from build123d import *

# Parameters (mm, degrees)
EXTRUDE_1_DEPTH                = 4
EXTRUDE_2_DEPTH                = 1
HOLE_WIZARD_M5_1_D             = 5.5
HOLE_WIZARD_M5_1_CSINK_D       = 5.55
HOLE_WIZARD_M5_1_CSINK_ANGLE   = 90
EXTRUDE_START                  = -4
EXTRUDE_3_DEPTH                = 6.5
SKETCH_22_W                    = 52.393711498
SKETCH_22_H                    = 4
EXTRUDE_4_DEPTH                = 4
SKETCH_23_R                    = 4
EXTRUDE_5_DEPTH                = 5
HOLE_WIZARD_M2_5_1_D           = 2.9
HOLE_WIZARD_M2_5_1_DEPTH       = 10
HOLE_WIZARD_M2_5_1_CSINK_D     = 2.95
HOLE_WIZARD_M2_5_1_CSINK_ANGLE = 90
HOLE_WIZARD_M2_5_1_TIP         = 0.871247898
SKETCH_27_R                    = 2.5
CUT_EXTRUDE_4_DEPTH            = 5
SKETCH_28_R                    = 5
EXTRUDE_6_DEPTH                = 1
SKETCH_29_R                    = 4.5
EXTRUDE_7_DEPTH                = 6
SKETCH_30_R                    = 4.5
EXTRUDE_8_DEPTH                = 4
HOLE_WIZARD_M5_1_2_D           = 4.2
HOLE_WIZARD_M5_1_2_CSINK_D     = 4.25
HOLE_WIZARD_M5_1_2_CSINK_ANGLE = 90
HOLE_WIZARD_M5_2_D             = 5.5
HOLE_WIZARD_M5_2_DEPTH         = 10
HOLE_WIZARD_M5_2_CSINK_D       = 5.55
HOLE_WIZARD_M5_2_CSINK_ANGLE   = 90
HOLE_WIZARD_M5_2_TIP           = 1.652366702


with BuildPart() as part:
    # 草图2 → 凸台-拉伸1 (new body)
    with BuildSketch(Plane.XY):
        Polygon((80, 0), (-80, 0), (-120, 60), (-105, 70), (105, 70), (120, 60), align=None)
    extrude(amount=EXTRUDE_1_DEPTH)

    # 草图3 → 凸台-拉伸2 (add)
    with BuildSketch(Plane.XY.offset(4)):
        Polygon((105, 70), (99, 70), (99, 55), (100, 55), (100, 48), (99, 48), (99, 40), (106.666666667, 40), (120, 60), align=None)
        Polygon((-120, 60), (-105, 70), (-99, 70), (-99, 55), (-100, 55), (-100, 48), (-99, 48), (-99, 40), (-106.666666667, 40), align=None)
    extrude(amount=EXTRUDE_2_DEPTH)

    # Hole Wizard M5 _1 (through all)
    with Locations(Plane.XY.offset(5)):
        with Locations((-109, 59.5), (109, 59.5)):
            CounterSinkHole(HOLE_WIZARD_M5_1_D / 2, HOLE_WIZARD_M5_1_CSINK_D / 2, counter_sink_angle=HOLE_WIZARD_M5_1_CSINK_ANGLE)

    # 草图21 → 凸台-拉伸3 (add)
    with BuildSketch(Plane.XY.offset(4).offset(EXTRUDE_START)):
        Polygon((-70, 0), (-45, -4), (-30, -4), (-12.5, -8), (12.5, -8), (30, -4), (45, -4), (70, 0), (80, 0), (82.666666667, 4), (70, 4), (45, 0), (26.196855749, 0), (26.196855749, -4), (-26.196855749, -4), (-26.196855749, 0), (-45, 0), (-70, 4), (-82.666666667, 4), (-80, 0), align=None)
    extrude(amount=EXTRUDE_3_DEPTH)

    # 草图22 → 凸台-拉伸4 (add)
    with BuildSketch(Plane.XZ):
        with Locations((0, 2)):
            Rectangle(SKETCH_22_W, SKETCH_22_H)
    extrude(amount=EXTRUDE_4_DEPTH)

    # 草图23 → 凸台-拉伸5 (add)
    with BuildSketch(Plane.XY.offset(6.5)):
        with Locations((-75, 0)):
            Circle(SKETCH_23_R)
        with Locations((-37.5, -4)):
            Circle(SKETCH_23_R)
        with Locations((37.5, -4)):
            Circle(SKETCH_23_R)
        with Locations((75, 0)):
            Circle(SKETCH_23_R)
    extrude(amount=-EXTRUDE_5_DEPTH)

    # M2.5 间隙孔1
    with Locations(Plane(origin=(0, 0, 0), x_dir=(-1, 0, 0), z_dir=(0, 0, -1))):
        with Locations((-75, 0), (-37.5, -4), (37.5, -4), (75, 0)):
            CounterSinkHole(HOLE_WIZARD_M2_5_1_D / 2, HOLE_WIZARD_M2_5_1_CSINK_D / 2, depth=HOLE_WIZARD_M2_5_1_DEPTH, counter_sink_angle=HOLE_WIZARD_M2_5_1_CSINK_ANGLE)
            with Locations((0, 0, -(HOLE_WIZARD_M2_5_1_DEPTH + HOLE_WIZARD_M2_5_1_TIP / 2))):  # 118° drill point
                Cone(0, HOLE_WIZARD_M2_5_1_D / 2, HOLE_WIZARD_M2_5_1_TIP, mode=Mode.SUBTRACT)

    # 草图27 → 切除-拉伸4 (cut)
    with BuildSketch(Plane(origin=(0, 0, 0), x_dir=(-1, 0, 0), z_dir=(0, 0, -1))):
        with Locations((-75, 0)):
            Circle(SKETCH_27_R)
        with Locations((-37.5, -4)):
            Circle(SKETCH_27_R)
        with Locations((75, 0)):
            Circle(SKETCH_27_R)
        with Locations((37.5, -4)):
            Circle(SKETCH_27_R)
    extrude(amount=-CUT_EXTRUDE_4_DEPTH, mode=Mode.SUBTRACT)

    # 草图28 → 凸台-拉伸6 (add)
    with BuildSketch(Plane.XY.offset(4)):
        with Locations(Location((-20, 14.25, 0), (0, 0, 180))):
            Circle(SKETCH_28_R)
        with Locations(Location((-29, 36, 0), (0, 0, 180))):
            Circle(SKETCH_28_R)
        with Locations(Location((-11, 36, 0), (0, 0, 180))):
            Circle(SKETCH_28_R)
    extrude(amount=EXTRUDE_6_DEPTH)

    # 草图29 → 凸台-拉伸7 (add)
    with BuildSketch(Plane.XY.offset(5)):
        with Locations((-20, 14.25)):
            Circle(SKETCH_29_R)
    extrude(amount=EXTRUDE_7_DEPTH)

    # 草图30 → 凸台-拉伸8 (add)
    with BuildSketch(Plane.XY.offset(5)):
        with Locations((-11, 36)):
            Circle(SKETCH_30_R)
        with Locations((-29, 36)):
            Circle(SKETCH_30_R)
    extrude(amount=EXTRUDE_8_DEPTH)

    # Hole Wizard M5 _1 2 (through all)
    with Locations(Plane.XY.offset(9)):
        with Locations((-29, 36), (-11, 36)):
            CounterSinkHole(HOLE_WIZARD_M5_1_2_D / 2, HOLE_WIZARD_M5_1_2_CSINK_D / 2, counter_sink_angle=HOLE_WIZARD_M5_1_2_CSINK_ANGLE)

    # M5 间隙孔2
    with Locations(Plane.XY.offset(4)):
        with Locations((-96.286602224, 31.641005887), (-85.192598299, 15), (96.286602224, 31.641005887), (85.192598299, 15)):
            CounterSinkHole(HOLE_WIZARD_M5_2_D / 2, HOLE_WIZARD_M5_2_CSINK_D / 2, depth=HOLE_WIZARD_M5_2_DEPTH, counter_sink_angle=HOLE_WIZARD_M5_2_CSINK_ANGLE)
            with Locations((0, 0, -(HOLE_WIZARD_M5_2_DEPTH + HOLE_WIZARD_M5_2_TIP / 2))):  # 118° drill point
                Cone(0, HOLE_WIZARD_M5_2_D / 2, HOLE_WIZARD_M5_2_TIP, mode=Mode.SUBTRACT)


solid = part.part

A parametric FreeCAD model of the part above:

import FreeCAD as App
import Part
import Sketcher

V = App.Vector


def add_polygon(sketch, points):
    """Adds a closed chain of lines whose ends are joined by coincident constraints."""
    first, n = sketch.GeometryCount, len(points)
    for a, b in zip(points, points[1:] + points[:1]):
        sketch.addGeometry(Part.LineSegment(App.Vector(*a, 0), App.Vector(*b, 0)), False)
    for i in range(n):
        sketch.addConstraint(Sketcher.Constraint("Coincident", first + i, 2, first + (i + 1) % n, 1))

doc = App.newDocument("Part")
body = doc.addObject("PartDesign::Body", "Body")

# Sketch on XY plane
sketch1 = body.newObject("Sketcher::SketchObject", "Sketch")
sketch1.AttachmentSupport = (doc.getObject("XY_Plane"), [""])
sketch1.MapMode = "FlatFace"
add_polygon(sketch1, [(-80, 0), (80, 0), (120, 60), (105, 70), (-105, 70), (-120, 60)])  # lines 0-5
sketch1.addConstraint([
    Sketcher.Constraint("Horizontal", 0),
    Sketcher.Constraint("Horizontal", 3),
    Sketcher.Constraint("Symmetric", 0, 2, 5, 2, -1, 1),
    Sketcher.Constraint("Symmetric", 1, 2, 4, 2, -2),
    Sketcher.Constraint("Perpendicular", 1, 2),
    Sketcher.Constraint("Perpendicular", 4, 5),
    Sketcher.Constraint("DistanceX", 0, 1, 0, 2, 160.0),
    Sketcher.Constraint("DistanceX", 3, 2, 3, 1, 210.0),
    Sketcher.Constraint("DistanceX", -1, 1, 1, 2, 120.0),
    Sketcher.Constraint("DistanceY", -1, 1, 1, 2, 60.0),
])
pad1 = body.newObject("PartDesign::Pad", "Pad")
pad1.Profile = sketch1
pad1.Length = 4

# Sketch on XY plane
sketch2 = body.newObject("Sketcher::SketchObject", "Sketch001")
sketch2.AttachmentSupport = (doc.getObject("XY_Plane"), [""])
sketch2.MapMode = "FlatFace"
sketch2.AttachmentOffset = App.Placement(V(0, 0, 4), App.Rotation())
add_polygon(sketch2, [(105, 70), (99, 70), (99, 55), (100, 55), (100, 48), (99, 48), (99, 40), (106.7, 40), (120, 60)])  # lines 0-8
add_polygon(sketch2, [(-105, 70), (-120, 60), (-106.7, 40), (-99, 40), (-99, 48), (-100, 48), (-100, 55), (-99, 55), (-99, 70)])  # lines 9-17
sketch2.addConstraint([
    Sketcher.Constraint("Horizontal", 0),
    Sketcher.Constraint("Vertical", 1),
    Sketcher.Constraint("Horizontal", 2),
    Sketcher.Constraint("Vertical", 3),
    Sketcher.Constraint("Horizontal", 4),
    Sketcher.Constraint("Vertical", 5),
    Sketcher.Constraint("Horizontal", 6),
    Sketcher.Constraint("Horizontal", 11),
    Sketcher.Constraint("Vertical", 12),
    Sketcher.Constraint("Horizontal", 13),
    Sketcher.Constraint("Vertical", 14),
    Sketcher.Constraint("Horizontal", 15),
    Sketcher.Constraint("Vertical", 16),
    Sketcher.Constraint("Horizontal", 17),
    Sketcher.Constraint("Symmetric", 7, 2, 9, 2, -2),
    Sketcher.Constraint("Symmetric", 6, 2, 10, 2, -2),
    Sketcher.Constraint("Symmetric", 4, 2, 12, 2, -2),
    Sketcher.Constraint("Symmetric", 2, 2, 14, 2, -2),
    Sketcher.Constraint("Symmetric", 0, 2, 16, 2, -2),
    Sketcher.Constraint("Perpendicular", 7, 8),
    Sketcher.Constraint("Perpendicular", 9, 10),
    Sketcher.Constraint("Vertical", 1, 2, 4, 2),
    Sketcher.Constraint("DistanceX", 0, 2, 0, 1, 6.0),
    Sketcher.Constraint("DistanceX", 2, 1, 2, 2, 1.0),
    Sketcher.Constraint("DistanceY", 1, 2, 1, 1, 15.0),
    Sketcher.Constraint("DistanceY", 3, 2, 3, 1, 7.0),
    Sketcher.Constraint("DistanceY", 5, 2, 5, 1, 8.0),
    Sketcher.Constraint("DistanceX", -1, 1, 0, 2, 99.0),
    Sketcher.Constraint("DistanceY", -1, 1, 0, 2, 70.0),
    Sketcher.Constraint("DistanceX", -1, 1, 7, 2, 120.0),
    Sketcher.Constraint("DistanceY", -1, 1, 7, 2, 60.0),
])
pad2 = body.newObject("PartDesign::Pad", "Pad001")
pad2.Profile = sketch2
pad2.Length = 1

# Sketch on XY plane
sketch3 = body.newObject("Sketcher::SketchObject", "Sketch002")
sketch3.AttachmentSupport = (doc.getObject("XY_Plane"), [""])
sketch3.MapMode = "FlatFace"
sketch3.AttachmentOffset = App.Placement(V(0, 0, 5), App.Rotation())
sketch3.addGeometry([
    Part.Circle(V(-109, 59.5, 0), V(0, 0, 1), 2.8),
    Part.Circle(V(109, 59.5, 0), V(0, 0, 1), 2.8),
], False)
sketch3.addConstraint([
    Sketcher.Constraint("Equal", 0, 1),
    Sketcher.Constraint("Symmetric", 0, 3, 1, 3, -2),
    Sketcher.Constraint("Diameter", 0, 5.5),
    Sketcher.Constraint("DistanceX", 0, 3, -1, 1, 109.0),
    Sketcher.Constraint("DistanceY", -1, 1, 0, 3, 59.5),
])
doc.recompute()
hole = body.newObject("PartDesign::Hole", "Hole")
hole.Profile = sketch3
hole.ThreadType = "None"
hole.Diameter = 5.5
hole.DepthType = "ThroughAll"
hole.HoleCutType = "Countersink"
hole.HoleCutDiameter = 5.55
hole.HoleCutCountersinkAngle = 90

# Sketch on XY plane
sketch4 = body.newObject("Sketcher::SketchObject", "Sketch003")
sketch4.AttachmentSupport = (doc.getObject("XY_Plane"), [""])
sketch4.MapMode = "FlatFace"
add_polygon(sketch4, [(-70, 0), (-45, -4), (-30, -4), (-12.5, -8), (12.5, -8), (30, -4), (45, -4), (70, 0), (80, 0), (82.7, 4), (70, 4), (45, 0), (26.2, 0), (26.2, -4), (-26.2, -4), (-26.2, 0), (-45, 0), (-70, 4), (-82.7, 4), (-80, 0)])  # lines 0-19
sketch4.addConstraint([
    Sketcher.Constraint("Horizontal", 1),
    Sketcher.Constraint("Horizontal", 3),
    Sketcher.Constraint("Horizontal", 5),
    Sketcher.Constraint("Horizontal", 7),
    Sketcher.Constraint("Horizontal", 9),
    Sketcher.Constraint("Horizontal", 11),
    Sketcher.Constraint("Vertical", 12),
    Sketcher.Constraint("Horizontal", 13),
    Sketcher.Constraint("Vertical", 14),
    Sketcher.Constraint("Horizontal", 15),
    Sketcher.Constraint("Horizontal", 17),
    Sketcher.Constraint("Horizontal", 19),
    Sketcher.Constraint("Symmetric", 11, 2, 14, 2, -1, 1),
    Sketcher.Constraint("Symmetric", 7, 2, 18, 2, -1, 1),
    Sketcher.Constraint("Symmetric", 1, 2, 4, 2, -2),
    Sketcher.Constraint("Symmetric", 10, 2, 15, 2, -2),
    Sketcher.Constraint("Symmetric", 9, 2, 16, 2, -2),
    Sketcher.Constraint("Symmetric", 6, 2, 19, 2, -2),
    Sketcher.Constraint("Parallel", 6, 10),
    Sketcher.Constraint("Parallel", 0, 16),
    Sketcher.Constraint("Horizontal", 5, 2, 12, 2),
    Sketcher.Constraint("Vertical", 6, 2, 9, 2),
    Sketcher.Constraint("Vertical", 5, 2, 10, 2),
    Sketcher.Constraint("Equal", 9, 17),
    Sketcher.Constraint("Equal", 2, 4),
    Sketcher.Constraint("DistanceX", 1, 1, 1, 2, 15.0),
    Sketcher.Constraint("DistanceX", 3, 1, 3, 2, 25.0),
    Sketcher.Constraint("DistanceX", 7, 1, 7, 2, 10.0),
    Sketcher.Constraint("DistanceY", 12, 2, 12, 1, 4.0),
    Sketcher.Constraint("DistanceX", 0, 2, -1, 1, 45.0),
    Sketcher.Constraint("DistanceY", 2, 2, -1, 1, 8.0),
    Sketcher.Constraint("DistanceX", -1, 1, 6, 2, 70.0),
    Sketcher.Constraint("Distance", 8, 4.807402),
    Sketcher.Constraint("DistanceX", 13, 2, 13, 1, 52.393711),
])
pad3 = body.newObject("PartDesign::Pad", "Pad002")
pad3.Profile = sketch4
pad3.Length = 6.5

# Sketch on XZ plane
sketch5 = body.newObject("Sketcher::SketchObject", "Sketch004")
sketch5.AttachmentSupport = (doc.getObject("XZ_Plane"), [""])
sketch5.MapMode = "FlatFace"
add_polygon(sketch5, [(-26.2, 4), (-26.2, 0), (26.2, 0), (26.2, 4)])  # lines 0-3
sketch5.addConstraint([
    Sketcher.Constraint("Vertical", 0),
    Sketcher.Constraint("Horizontal", 1),
    Sketcher.Constraint("Vertical", 2),
    Sketcher.Constraint("Horizontal", 3),
    Sketcher.Constraint("Symmetric", 0, 2, 1, 2, -1, 1),
    Sketcher.Constraint("DistanceY", 0, 2, 0, 1, 4.0),
    Sketcher.Constraint("DistanceX", 1, 1, 1, 2, 52.393711),
])
pad4 = body.newObject("PartDesign::Pad", "Pad003")
pad4.Profile = sketch5
pad4.Length = 4

# Sketch on XY plane
sketch6 = body.newObject("Sketcher::SketchObject", "Sketch005")
sketch6.AttachmentSupport = (doc.getObject("XY_Plane"), [""])
sketch6.MapMode = "FlatFace"
sketch6.AttachmentOffset = App.Placement(V(0, 0, 6.5), App.Rotation())
sketch6.addGeometry([
    Part.Circle(V(-75, 0, 0), V(0, 0, 1), 4),
    Part.Circle(V(-37.5, -4, 0), V(0, 0, 1), 4),
    Part.Circle(V(37.5, -4, 0), V(0, 0, 1), 4),
    Part.Circle(V(75, 0, 0), V(0, 0, 1), 4),
], False)
sketch6.addConstraint([
    Sketcher.Constraint("Equal", 0, 1),
    Sketcher.Constraint("Equal", 1, 2),
    Sketcher.Constraint("Equal", 2, 3),
    Sketcher.Constraint("Symmetric", 0, 3, 3, 3, -1, 1),
    Sketcher.Constraint("Symmetric", 1, 3, 2, 3, -2),
    Sketcher.Constraint("PointOnObject", 0, 3, -1),
    Sketcher.Constraint("Diameter", 0, 8.0),
    Sketcher.Constraint("DistanceX", 0, 3, -1, 1, 75.0),
    Sketcher.Constraint("DistanceY", 1, 3, -1, 1, 4.0),
    Sketcher.Constraint("DistanceX", 1, 3, 2, 3, 75.0),
])
pad5 = body.newObject("PartDesign::Pad", "Pad004")
pad5.Profile = sketch6
pad5.Length = 5
pad5.Reversed = True

# Sketch on XY plane
sketch7 = body.newObject("Sketcher::SketchObject", "Sketch006")
sketch7.AttachmentSupport = (doc.getObject("XY_Plane"), [""])
sketch7.MapMode = "FlatFace"
sketch7.addGeometry([
    Part.Circle(V(75, 0, 0), V(0, 0, 1), 1.4),
    Part.Circle(V(37.5, -4, 0), V(0, 0, 1), 1.4),
    Part.Circle(V(-37.5, -4, 0), V(0, 0, 1), 1.4),
    Part.Circle(V(-75, 0, 0), V(0, 0, 1), 1.4),
], False)
sketch7.addConstraint([
    Sketcher.Constraint("Equal", 0, 1),
    Sketcher.Constraint("Equal", 1, 2),
    Sketcher.Constraint("Equal", 2, 3),
    Sketcher.Constraint("Symmetric", 0, 3, 3, 3, -1, 1),
    Sketcher.Constraint("Symmetric", 1, 3, 2, 3, -2),
    Sketcher.Constraint("PointOnObject", 0, 3, -1),
    Sketcher.Constraint("Diameter", 0, 2.9),
    Sketcher.Constraint("DistanceX", -1, 1, 0, 3, 75.0),
    Sketcher.Constraint("DistanceY", 1, 3, -1, 1, 4.0),
    Sketcher.Constraint("DistanceX", 2, 3, 1, 3, 75.0),
])
doc.recompute()
hole2 = body.newObject("PartDesign::Hole", "Hole001")
hole2.Profile = sketch7
hole2.ThreadType = "None"
hole2.Diameter = 2.9
hole2.DepthType = "Dimension"
hole2.Depth = 10
hole2.DrillPoint = "Angled"
hole2.DrillPointAngle = 118
hole2.HoleCutType = "Countersink"
hole2.HoleCutDiameter = 2.95
hole2.HoleCutCountersinkAngle = 90
hole2.Reversed = True

# Sketch on XY plane
sketch8 = body.newObject("Sketcher::SketchObject", "Sketch007")
sketch8.AttachmentSupport = (doc.getObject("XY_Plane"), [""])
sketch8.MapMode = "FlatFace"
sketch8.addGeometry([
    Part.Circle(V(75, 0, 0), V(0, 0, 1), 2.5),
    Part.Circle(V(37.5, -4, 0), V(0, 0, 1), 2.5),
    Part.Circle(V(-75, 0, 0), V(0, 0, 1), 2.5),
    Part.Circle(V(-37.5, -4, 0), V(0, 0, 1), 2.5),
], False)
sketch8.addConstraint([
    Sketcher.Constraint("Equal", 0, 1),
    Sketcher.Constraint("Equal", 1, 2),
    Sketcher.Constraint("Equal", 2, 3),
    Sketcher.Constraint("Symmetric", 0, 3, 2, 3, -1, 1),
    Sketcher.Constraint("Symmetric", 1, 3, 3, 3, -2),
    Sketcher.Constraint("PointOnObject", 0, 3, -1),
    Sketcher.Constraint("Diameter", 0, 5.0),
    Sketcher.Constraint("DistanceX", -1, 1, 0, 3, 75.0),
    Sketcher.Constraint("DistanceY", 1, 3, -1, 1, 4.0),
    Sketcher.Constraint("DistanceX", 3, 3, 1, 3, 75.0),
])
pocket1 = body.newObject("PartDesign::Pocket", "Pocket")
pocket1.Profile = sketch8
pocket1.Length = 5
pocket1.Reversed = True

# Sketch on XY plane
sketch9 = body.newObject("Sketcher::SketchObject", "Sketch008")
sketch9.AttachmentSupport = (doc.getObject("XY_Plane"), [""])
sketch9.MapMode = "FlatFace"
sketch9.AttachmentOffset = App.Placement(V(0, 0, 4), App.Rotation())
sketch9.addGeometry([
    Part.Circle(V(-20, 14, 0), V(0, 0, 1), 5),
    Part.Circle(V(-29, 36, 0), V(0, 0, 1), 5),
    Part.Circle(V(-11, 36, 0), V(0, 0, 1), 5),
], False)
sketch9.addConstraint([
    Sketcher.Constraint("Equal", 0, 1),
    Sketcher.Constraint("Equal", 1, 2),
    Sketcher.Constraint("Horizontal", 1, 3, 2, 3),
    Sketcher.Constraint("Diameter", 0, 10.0),
    Sketcher.Constraint("DistanceX", 0, 3, -1, 1, 20.0),
    Sketcher.Constraint("DistanceX", 1, 3, -1, 1, 29.0),
    Sketcher.Constraint("DistanceY", -1, 1, 1, 3, 36.0),
    Sketcher.Constraint("DistanceX", 2, 3, -1, 1, 11.0),
    Sketcher.Constraint("DistanceY", -1, 1, 0, 3, 14.25),
])
pad6 = body.newObject("PartDesign::Pad", "Pad005")
pad6.Profile = sketch9
pad6.Length = 1

# Sketch on XY plane
sketch10 = body.newObject("Sketcher::SketchObject", "Sketch009")
sketch10.AttachmentSupport = (doc.getObject("XY_Plane"), [""])
sketch10.MapMode = "FlatFace"
sketch10.AttachmentOffset = App.Placement(V(0, 0, 5), App.Rotation())
sketch10.addGeometry(Part.Circle(V(-20, 14.2, 0), V(0, 0, 1), 4.5), False)
sketch10.addConstraint([
    Sketcher.Constraint("Diameter", 0, 9.0),
    Sketcher.Constraint("DistanceX", 0, 3, -1, 1, 20.0),
    Sketcher.Constraint("DistanceY", -1, 1, 0, 3, 14.25),
])
pad7 = body.newObject("PartDesign::Pad", "Pad006")
pad7.Profile = sketch10
pad7.Length = 6

# Sketch on XY plane
sketch11 = body.newObject("Sketcher::SketchObject", "Sketch010")
sketch11.AttachmentSupport = (doc.getObject("XY_Plane"), [""])
sketch11.MapMode = "FlatFace"
sketch11.AttachmentOffset = App.Placement(V(0, 0, 5), App.Rotation())
sketch11.addGeometry([
    Part.Circle(V(-11, 36, 0), V(0, 0, 1), 4.5),
    Part.Circle(V(-29, 36, 0), V(0, 0, 1), 4.5),
], False)
sketch11.addConstraint([
    Sketcher.Constraint("Equal", 0, 1),
    Sketcher.Constraint("Horizontal", 0, 3, 1, 3),
    Sketcher.Constraint("Diameter", 0, 9.0),
    Sketcher.Constraint("DistanceX", 0, 3, -1, 1, 11.0),
    Sketcher.Constraint("DistanceY", -1, 1, 0, 3, 36.0),
    Sketcher.Constraint("DistanceX", 1, 3, -1, 1, 29.0),
])
pad8 = body.newObject("PartDesign::Pad", "Pad007")
pad8.Profile = sketch11
pad8.Length = 4

# Sketch on XY plane
sketch12 = body.newObject("Sketcher::SketchObject", "Sketch011")
sketch12.AttachmentSupport = (doc.getObject("XY_Plane"), [""])
sketch12.MapMode = "FlatFace"
sketch12.AttachmentOffset = App.Placement(V(0, 0, 9), App.Rotation())
sketch12.addGeometry([
    Part.Circle(V(-29, 36, 0), V(0, 0, 1), 2.1),
    Part.Circle(V(-11, 36, 0), V(0, 0, 1), 2.1),
], False)
sketch12.addConstraint([
    Sketcher.Constraint("Equal", 0, 1),
    Sketcher.Constraint("Horizontal", 0, 3, 1, 3),
    Sketcher.Constraint("Diameter", 0, 4.2),
    Sketcher.Constraint("DistanceX", 0, 3, -1, 1, 29.0),
    Sketcher.Constraint("DistanceY", -1, 1, 0, 3, 36.0),
    Sketcher.Constraint("DistanceX", 1, 3, -1, 1, 11.0),
])
doc.recompute()
hole3 = body.newObject("PartDesign::Hole", "Hole002")
hole3.Profile = sketch12
hole3.ThreadType = "None"
hole3.Diameter = 4.2
hole3.DepthType = "ThroughAll"
hole3.HoleCutType = "Countersink"
hole3.HoleCutDiameter = 4.25
hole3.HoleCutCountersinkAngle = 90

# Sketch on XY plane
sketch13 = body.newObject("Sketcher::SketchObject", "Sketch012")
sketch13.AttachmentSupport = (doc.getObject("XY_Plane"), [""])
sketch13.MapMode = "FlatFace"
sketch13.AttachmentOffset = App.Placement(V(0, 0, 4), App.Rotation())
sketch13.addGeometry([
    Part.Circle(V(-96.3, 31.6, 0), V(0, 0, 1), 2.8),
    Part.Circle(V(-85.2, 15, 0), V(0, 0, 1), 2.8),
    Part.Circle(V(96.3, 31.6, 0), V(0, 0, 1), 2.8),
    Part.Circle(V(85.2, 15, 0), V(0, 0, 1), 2.8),
], False)
sketch13.addConstraint([
    Sketcher.Constraint("Equal", 0, 1),
    Sketcher.Constraint("Equal", 1, 2),
    Sketcher.Constraint("Equal", 2, 3),
    Sketcher.Constraint("Symmetric", 0, 3, 2, 3, -2),
    Sketcher.Constraint("Symmetric", 1, 3, 3, 3, -2),
    Sketcher.Constraint("Diameter", 0, 5.5),
    Sketcher.Constraint("DistanceY", -1, 1, 1, 3, 15.0),
    Sketcher.Constraint("DistanceX", 1, 3, -1, 1, 85.192598),
    Sketcher.Constraint("DistanceX", 1, 3, 2, 3, 181.479201),
    Sketcher.Constraint("DistanceY", -1, 1, 0, 3, 31.641006),
])
doc.recompute()
hole4 = body.newObject("PartDesign::Hole", "Hole003")
hole4.Profile = sketch13
hole4.ThreadType = "None"
hole4.Diameter = 5.5
hole4.DepthType = "Dimension"
hole4.Depth = 10
hole4.DrillPoint = "Angled"
hole4.DrillPointAngle = 118
hole4.HoleCutType = "Countersink"
hole4.HoleCutDiameter = 5.55
hole4.HoleCutCountersinkAngle = 90

doc.recompute()
